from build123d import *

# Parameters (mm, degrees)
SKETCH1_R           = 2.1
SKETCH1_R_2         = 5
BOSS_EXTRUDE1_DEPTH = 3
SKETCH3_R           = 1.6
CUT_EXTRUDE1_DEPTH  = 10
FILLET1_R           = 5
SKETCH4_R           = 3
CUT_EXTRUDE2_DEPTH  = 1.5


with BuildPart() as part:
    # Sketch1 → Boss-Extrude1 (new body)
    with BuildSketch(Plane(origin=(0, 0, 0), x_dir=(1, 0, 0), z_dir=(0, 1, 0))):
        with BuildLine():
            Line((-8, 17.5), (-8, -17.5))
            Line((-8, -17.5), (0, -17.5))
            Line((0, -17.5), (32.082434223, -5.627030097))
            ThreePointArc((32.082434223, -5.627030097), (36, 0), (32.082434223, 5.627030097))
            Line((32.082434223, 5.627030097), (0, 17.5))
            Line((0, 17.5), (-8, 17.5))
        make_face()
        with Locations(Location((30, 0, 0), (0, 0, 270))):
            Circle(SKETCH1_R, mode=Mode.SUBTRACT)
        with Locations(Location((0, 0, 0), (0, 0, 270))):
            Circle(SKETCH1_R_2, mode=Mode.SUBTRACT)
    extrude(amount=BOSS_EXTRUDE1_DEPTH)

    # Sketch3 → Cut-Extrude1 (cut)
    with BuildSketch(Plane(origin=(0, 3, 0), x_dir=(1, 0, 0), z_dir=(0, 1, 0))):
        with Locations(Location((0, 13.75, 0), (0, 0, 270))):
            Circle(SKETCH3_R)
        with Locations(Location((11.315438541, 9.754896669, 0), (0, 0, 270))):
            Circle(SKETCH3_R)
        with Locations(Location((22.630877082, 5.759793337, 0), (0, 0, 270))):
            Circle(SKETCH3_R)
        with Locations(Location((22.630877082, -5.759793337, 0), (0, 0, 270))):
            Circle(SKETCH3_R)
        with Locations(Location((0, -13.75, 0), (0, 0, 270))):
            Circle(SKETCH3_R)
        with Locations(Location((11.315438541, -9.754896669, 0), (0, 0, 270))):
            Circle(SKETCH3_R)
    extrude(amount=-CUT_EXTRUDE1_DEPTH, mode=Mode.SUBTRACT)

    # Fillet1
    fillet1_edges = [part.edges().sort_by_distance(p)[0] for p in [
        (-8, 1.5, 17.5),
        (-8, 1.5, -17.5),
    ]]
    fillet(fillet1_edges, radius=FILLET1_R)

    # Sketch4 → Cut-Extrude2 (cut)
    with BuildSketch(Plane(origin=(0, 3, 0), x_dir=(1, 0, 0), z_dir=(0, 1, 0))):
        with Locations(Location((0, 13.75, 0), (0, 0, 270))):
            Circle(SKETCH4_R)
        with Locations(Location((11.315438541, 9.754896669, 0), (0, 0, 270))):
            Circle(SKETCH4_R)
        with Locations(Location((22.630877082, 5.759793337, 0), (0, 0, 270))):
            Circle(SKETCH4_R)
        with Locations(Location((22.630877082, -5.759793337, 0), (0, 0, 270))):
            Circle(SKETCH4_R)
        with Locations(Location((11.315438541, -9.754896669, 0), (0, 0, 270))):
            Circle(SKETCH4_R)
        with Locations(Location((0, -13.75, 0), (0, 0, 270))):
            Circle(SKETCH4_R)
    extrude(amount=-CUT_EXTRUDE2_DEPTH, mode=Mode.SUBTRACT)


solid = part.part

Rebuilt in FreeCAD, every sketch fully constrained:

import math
import FreeCAD as App
import Part
import Sketcher


def edges_at(feature, points):
    """Names of the edges that pass closest to the given points."""
    edges = feature.Shape.Edges
    near = lambda p: min(range(len(edges)), key=lambda i: edges[i].distToShape(Part.Vertex(*p))[0])
    return sorted({f"Edge{near(p) + 1}" for p in points})

doc = App.newDocument("Part")
body = doc.addObject("PartDesign::Body", "Body")

sketch1 = body.newObject("Sketcher::SketchObject", "Sketch")
sketch1.AttachmentSupport = (doc.getObject("XZ_Plane"), [""])
sketch1.MapMode = "FlatFace"
sketch1.addGeometry([
    Part.LineSegment(App.Vector(-8, -17.5, 0), App.Vector(-8, 17.5, 0)),
    Part.LineSegment(App.Vector(-8, 17.5, 0), App.Vector(0, 17.5, 0)),
    Part.LineSegment(App.Vector(0, 17.5, 0), App.Vector(32.1, 5.6, 0)),
    Part.ArcOfCircle(Part.Circle(App.Vector(30, 0, 0), App.Vector(0, 0, 1), 6), math.radians(-70), math.radians(70)),
    Part.LineSegment(App.Vector(32.1, -5.6, 0), App.Vector(0, -17.5, 0)),
    Part.LineSegment(App.Vector(0, -17.5, 0), App.Vector(-8, -17.5, 0)),
    Part.Circle(App.Vector(0, 0, 0), App.Vector(0, 0, 1), 5),
    Part.Circle(App.Vector(30, 0, 0), App.Vector(0, 0, 1), 2.1),
], False)
sketch1.addConstraint([
    Sketcher.Constraint("Coincident", 0, 2, 1, 1),
    Sketcher.Constraint("Coincident", 1, 2, 2, 1),
    Sketcher.Constraint("Tangent", 2, 2, 3, 2),
    Sketcher.Constraint("Tangent", 3, 1, 4, 1),
    Sketcher.Constraint("Coincident", 4, 2, 5, 1),
    Sketcher.Constraint("Coincident", 5, 2, 0, 1),
    Sketcher.Constraint("Vertical", 0),
    Sketcher.Constraint("Horizontal", 1),
    Sketcher.Constraint("Horizontal", 5),
    Sketcher.Constraint("Coincident", 6, 3, -1, 1),
    Sketcher.Constraint("Coincident", 7, 3, 3, 3),
    Sketcher.Constraint("Symmetric", 1, 2, 4, 2, -1, 1),
    Sketcher.Constraint("Symmetric", 2, 2, 3, 1, -1),
    Sketcher.Constraint("Diameter", 6, 10.0),
    Sketcher.Constraint("Radius", 3, 6.0),
    Sketcher.Constraint("Diameter", 7, 4.2),
    Sketcher.Constraint("DistanceX", 1, 1, 1, 2, 8.0),
    Sketcher.Constraint("DistanceY", 0, 1, 0, 2, 35.0),
    Sketcher.Constraint("DistanceX", -1, 1, 3, 3, 30.0),
])
pad1 = body.newObject("PartDesign::Pad", "Pad")
pad1.Profile = sketch1
pad1.Length = 3
pad1.Reversed = True

sketch2 = body.newObject("Sketcher::SketchObject", "Sketch001")
sketch2.AttachmentSupport = (doc.getObject("XZ_Plane"), [""])
sketch2.MapMode = "FlatFace"
sketch2.AttachmentOffset = App.Placement(App.Vector(0, 0, -3), App.Rotation())
sketch2.addGeometry([
    Part.Circle(App.Vector(0, -13.8, 0), App.Vector(0, 0, 1), 1.6),
    Part.Circle(App.Vector(11.3, -9.8, 0), App.Vector(0, 0, 1), 1.6),
    Part.Circle(App.Vector(22.6, -5.8, 0), App.Vector(0, 0, 1), 1.6),
    Part.Circle(App.Vector(22.6, 5.8, 0), App.Vector(0, 0, 1), 1.6),
    Part.Circle(App.Vector(0, 13.8, 0), App.Vector(0, 0, 1), 1.6),
    Part.Circle(App.Vector(11.3, 9.8, 0), App.Vector(0, 0, 1), 1.6),
], False)
sketch2.addConstraint([
    Sketcher.Constraint("Equal", 0, 1),
    Sketcher.Constraint("Equal", 1, 2),
    Sketcher.Constraint("Equal", 2, 3),
    Sketcher.Constraint("Equal", 3, 4),
    Sketcher.Constraint("Equal", 4, 5),
    Sketcher.Constraint("Symmetric", 0, 3, 4, 3, -1, 1),
    Sketcher.Constraint("Symmetric", 2, 3, 3, 3, -1),
    Sketcher.Constraint("Symmetric", 1, 3, 5, 3, -1),
    Sketcher.Constraint("PointOnObject", 0, 3, -2),
    Sketcher.Constraint("Diameter", 0, 3.2),
    Sketcher.Constraint("DistanceY", 0, 3, 4, 3, 27.5),
    Sketcher.Constraint("DistanceX", -1, 1, 1, 3, 11.315439),
    Sketcher.Constraint("DistanceX", 1, 3, 2, 3, 11.315439),
    Sketcher.Constraint("DistanceY", 1, 3, 3, 3, 15.51469),
    Sketcher.Constraint("DistanceY", 1, 3, -1, 1, 9.754897),
])
pocket1 = body.newObject("PartDesign::Pocket", "Pocket")
pocket1.Profile = sketch2
pocket1.Length = 10
pocket1.Reversed = True
doc.recompute()

fillet = body.newObject("PartDesign::Fillet", "Fillet")
fillet.Base = (pocket1, edges_at(pocket1, [(-8, 1.5, 17.5), (-8, 1.5, -17.5)]))
fillet.Radius = 5

sketch3 = body.newObject("Sketcher::SketchObject", "Sketch002")
sketch3.AttachmentSupport = (doc.getObject("XZ_Plane"), [""])
sketch3.MapMode = "FlatFace"
sketch3.AttachmentOffset = App.Placement(App.Vector(0, 0, -3), App.Rotation())
sketch3.addGeometry([
    Part.Circle(App.Vector(0, -13.8, 0), App.Vector(0, 0, 1), 3),
    Part.Circle(App.Vector(11.3, -9.8, 0), App.Vector(0, 0, 1), 3),
    Part.Circle(App.Vector(22.6, -5.8, 0), App.Vector(0, 0, 1), 3),
    Part.Circle(App.Vector(22.6, 5.8, 0), App.Vector(0, 0, 1), 3),
    Part.Circle(App.Vector(11.3, 9.8, 0), App.Vector(0, 0, 1), 3),
    Part.Circle(App.Vector(0, 13.8, 0), App.Vector(0, 0, 1), 3),
], False)
sketch3.addConstraint([
    Sketcher.Constraint("Equal", 0, 1),
    Sketcher.Constraint("Equal", 1, 2),
    Sketcher.Constraint("Equal", 2, 3),
    Sketcher.Constraint("Equal", 3, 4),
    Sketcher.Constraint("Equal", 4, 5),
    Sketcher.Constraint("Symmetric", 0, 3, 5, 3, -1, 1),
    Sketcher.Constraint("Symmetric", 2, 3, 3, 3, -1),
    Sketcher.Constraint("Symmetric", 1, 3, 4, 3, -1),
    Sketcher.Constraint("PointOnObject", 0, 3, -2),
    Sketcher.Constraint("Diameter", 0, 6.0),
    Sketcher.Constraint("DistanceY", 0, 3, 5, 3, 27.5),
    Sketcher.Constraint("DistanceX", -1, 1, 1, 3, 11.315439),
    Sketcher.Constraint("DistanceX", 1, 3, 2, 3, 11.315439),
    Sketcher.Constraint("DistanceY", 1, 3, 3, 3, 15.51469),
    Sketcher.Constraint("DistanceY", 1, 3, -1, 1, 9.754897),
])
pocket2 = body.newObject("PartDesign::Pocket", "Pocket001")
pocket2.Profile = sketch3
pocket2.Length = 1.5
pocket2.Reversed = True

doc.recompute()
